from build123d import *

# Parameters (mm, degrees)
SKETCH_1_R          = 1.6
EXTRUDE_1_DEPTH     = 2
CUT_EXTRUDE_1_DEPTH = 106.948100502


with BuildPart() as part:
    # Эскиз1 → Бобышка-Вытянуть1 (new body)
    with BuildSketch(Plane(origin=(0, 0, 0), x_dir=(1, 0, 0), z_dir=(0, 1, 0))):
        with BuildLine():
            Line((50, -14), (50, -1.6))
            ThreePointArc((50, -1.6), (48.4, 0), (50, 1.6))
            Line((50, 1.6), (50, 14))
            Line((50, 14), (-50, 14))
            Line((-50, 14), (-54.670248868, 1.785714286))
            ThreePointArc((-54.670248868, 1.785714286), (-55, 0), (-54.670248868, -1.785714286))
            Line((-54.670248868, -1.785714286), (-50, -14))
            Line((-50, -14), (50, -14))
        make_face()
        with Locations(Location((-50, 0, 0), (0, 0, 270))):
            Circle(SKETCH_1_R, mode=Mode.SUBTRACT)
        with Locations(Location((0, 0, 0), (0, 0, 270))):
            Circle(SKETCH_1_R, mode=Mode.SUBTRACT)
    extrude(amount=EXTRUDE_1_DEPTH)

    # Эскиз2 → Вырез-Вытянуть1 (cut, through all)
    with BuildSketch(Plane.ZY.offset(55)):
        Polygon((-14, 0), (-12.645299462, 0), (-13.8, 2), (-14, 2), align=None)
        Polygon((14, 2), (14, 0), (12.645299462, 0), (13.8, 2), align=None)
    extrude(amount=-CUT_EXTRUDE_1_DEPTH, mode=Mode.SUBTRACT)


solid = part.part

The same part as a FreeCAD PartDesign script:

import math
import FreeCAD as App
import Part
import Sketcher
from FreeCAD import Vector
Q = App.Units.Quantity


def add_polygon(sketch, points):
    """Adds a closed chain of lines whose ends are joined by coincident constraints."""
    first, n = sketch.GeometryCount, len(points)
    for a, b in zip(points, points[1:] + points[:1]):
        sketch.addGeometry(Part.LineSegment(App.Vector(*a, 0), App.Vector(*b, 0)), False)
    for i in range(n):
        sketch.addConstraint(Sketcher.Constraint("Coincident", first + i, 2, first + (i + 1) % n, 1))

doc = App.newDocument("Part")
body = doc.addObject("PartDesign::Body", "Body")

sketch1 = body.newObject("Sketcher::SketchObject", "Sketch")
sketch1.AttachmentSupport = (doc.getObject("XZ_Plane"), [""])
sketch1.MapMode = "FlatFace"
sketch1.addGeometry(Part.LineSegment(Vector(50, 14, 0), Vector(50, 1.6, 0)), False)
sketch1.addGeometry(Part.ArcOfCircle(Part.Circle(Vector(50, 0, 0), Vector(0, 0, 1), 1.6), math.radians(90), math.radians(270)), False)
sketch1.addGeometry(Part.LineSegment(Vector(50, -1.6, 0), Vector(50, -14, 0)), False)
sketch1.addGeometry(Part.LineSegment(Vector(50, -14, 0), Vector(-50, -14, 0)), False)
sketch1.addGeometry(Part.LineSegment(Vector(-50, -14, 0), Vector(-54.7, -1.8, 0)), False)
sketch1.addGeometry(Part.ArcOfCircle(Part.Circle(Vector(-50, 0, 0), Vector(0, 0, 1), 5), math.radians(159), math.radians(201)), False)
sketch1.addGeometry(Part.LineSegment(Vector(-54.7, 1.8, 0), Vector(-50, 14, 0)), False)
sketch1.addGeometry(Part.LineSegment(Vector(-50, 14, 0), Vector(50, 14, 0)), False)
sketch1.addGeometry(Part.Circle(Vector(-50, 0, 0), Vector(0, 0, 1), 1.6), False)
sketch1.addGeometry(Part.Circle(Vector(0, 0, 0), Vector(0, 0, 1), 1.6), False)
sketch1.addConstraint(Sketcher.Constraint("Coincident", 0, 2, 1, 1))
sketch1.addConstraint(Sketcher.Constraint("Coincident", 1, 2, 2, 1))
sketch1.addConstraint(Sketcher.Constraint("Coincident", 2, 2, 3, 1))
sketch1.addConstraint(Sketcher.Constraint("Coincident", 3, 2, 4, 1))
sketch1.addConstraint(Sketcher.Constraint("Tangent", 4, 2, 5, 2))
sketch1.addConstraint(Sketcher.Constraint("Tangent", 5, 1, 6, 1))
sketch1.addConstraint(Sketcher.Constraint("Coincident", 6, 2, 7, 1))
sketch1.addConstraint(Sketcher.Constraint("Coincident", 7, 2, 0, 1))
sketch1.addConstraint(Sketcher.Constraint("Vertical", 0))
sketch1.addConstraint(Sketcher.Constraint("Vertical", 2))
sketch1.addConstraint(Sketcher.Constraint("Horizontal", 3))
sketch1.addConstraint(Sketcher.Constraint("Horizontal", 7))
sketch1.addConstraint(Sketcher.Constraint("Coincident", 9, 3, -1, 1))
sketch1.addConstraint(Sketcher.Constraint("Coincident", 8, 3, 5, 3))
sketch1.addConstraint(Sketcher.Constraint("Equal", 1, 8))
sketch1.addConstraint(Sketcher.Constraint("Equal", 8, 9))
sketch1.addConstraint(Sketcher.Constraint("Symmetric", 1, 3, 5, 3, -1, 1))
sketch1.addConstraint(Sketcher.Constraint("Symmetric", 2, 2, 6, 2, -1, 1))
sketch1.addConstraint(Sketcher.Constraint("Symmetric", 0, 2, 1, 2, -1))
sketch1.addConstraint(Sketcher.Constraint("Vertical", 1, 3, 0, 2))
sketch1.addConstraint(Sketcher.Constraint("Vertical", 8, 3, 3, 2))
sketch1.addConstraint(Sketcher.Constraint("Radius", 5, 5.0))
sketch1.addConstraint(Sketcher.Constraint("Diameter", 8, 3.2))
sketch1.addConstraint(Sketcher.Constraint("DistanceX", 3, 2, 3, 1, 100.0))
sketch1.addConstraint(Sketcher.Constraint("DistanceY", 0, 2, 0, 1, 12.4))
pad1 = body.newObject("PartDesign::Pad", "Pad")
pad1.Profile = sketch1
pad1.Length = 2
pad1.Reversed = True

sketch2 = body.newObject("Sketcher::SketchObject", "Sketch001")
sketch2.AttachmentSupport = (doc.getObject("YZ_Plane"), [""])
sketch2.MapMode = "FlatFace"
sketch2.AttachmentOffset = App.Placement(Vector(0, 0, -55), App.Rotation())
add_polygon(sketch2, [(0, -14), (0, -12.65), (2, -13.8), (2, -14)])
add_polygon(sketch2, [(0, 14), (2, 14), (2, 13.8), (0, 12.65)])
sketch2.addConstraint(Sketcher.Constraint("Vertical", 0))
sketch2.addConstraint(Sketcher.Constraint("Vertical", 2))
sketch2.addConstraint(Sketcher.Constraint("Horizontal", 3))
sketch2.addConstraint(Sketcher.Constraint("Horizontal", 4))
sketch2.addConstraint(Sketcher.Constraint("Vertical", 5))
sketch2.addConstraint(Sketcher.Constraint("Vertical", 7))
sketch2.addConstraint(Sketcher.Constraint("Symmetric", 0, 2, 6, 2, -1, 1))
sketch2.addConstraint(Sketcher.Constraint("Symmetric", 2, 2, 4, 2, -1))
sketch2.addConstraint(Sketcher.Constraint("PointOnObject", 0, 2, -2))
sketch2.addConstraint(Sketcher.Constraint("Equal", 2, 5))
sketch2.addConstraint(Sketcher.Constraint("DistanceX", 3, 2, 3, 1, 2.0))
sketch2.addConstraint(Sketcher.Constraint("Angle", 1, Q("-30 deg")))
sketch2.addConstraint(Sketcher.Constraint("DistanceY", 2, 2, 2, 1, 0.2))
sketch2.addConstraint(Sketcher.Constraint("DistanceY", 2, 2, -1, 1, 14.0))
pocket1 = body.newObject("PartDesign::Pocket", "Pocket")
pocket1.Profile = sketch2
pocket1.Type = "ThroughAll"
pocket1.Reversed = True

doc.recompute()
